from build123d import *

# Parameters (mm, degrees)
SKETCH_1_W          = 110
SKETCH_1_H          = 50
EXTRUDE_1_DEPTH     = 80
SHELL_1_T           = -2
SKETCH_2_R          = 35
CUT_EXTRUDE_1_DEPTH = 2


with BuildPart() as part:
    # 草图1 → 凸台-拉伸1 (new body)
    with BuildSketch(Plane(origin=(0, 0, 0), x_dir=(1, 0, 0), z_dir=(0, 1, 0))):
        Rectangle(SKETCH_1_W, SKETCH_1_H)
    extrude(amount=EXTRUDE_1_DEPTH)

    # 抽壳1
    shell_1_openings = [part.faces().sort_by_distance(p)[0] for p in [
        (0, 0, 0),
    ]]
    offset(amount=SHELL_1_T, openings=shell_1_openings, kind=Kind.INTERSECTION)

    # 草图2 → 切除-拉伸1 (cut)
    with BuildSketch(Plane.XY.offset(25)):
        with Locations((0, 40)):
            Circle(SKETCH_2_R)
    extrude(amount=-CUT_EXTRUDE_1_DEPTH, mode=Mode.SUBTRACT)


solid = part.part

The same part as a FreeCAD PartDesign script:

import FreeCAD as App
import Part
import Sketcher
from FreeCAD import Vector


def faces_at(feature, points):
    """Names of the faces that lie closest to the given points."""
    faces = feature.Shape.Faces
    near = lambda p: min(range(len(faces)), key=lambda i: faces[i].distToShape(Part.Vertex(*p))[0])
    return sorted({f"Face{near(p) + 1}" for p in points})


def add_polygon(sketch, points):
    """Adds a closed chain of lines whose ends are joined by coincident constraints."""
    first, n = sketch.GeometryCount, len(points)
    for a, b in zip(points, points[1:] + points[:1]):
        sketch.addGeometry(Part.LineSegment(App.Vector(*a, 0), App.Vector(*b, 0)), False)
    for i in range(n):
        sketch.addConstraint(Sketcher.Constraint("Coincident", first + i, 2, first + (i + 1) % n, 1))

doc = App.newDocument("Part")
params = doc.addObject("Spreadsheet::Sheet", "Params")
for row, (alias, value) in enumerate([
    ("sketch1_width", "110 mm"),
    ("sketch1_height", "50 mm"),
    ("pad1_length", "80 mm"),
    ("thickness_wall", "2 mm"),
    ("sketch2_diameter", "70 mm"),
    ("pocket1_length", "2 mm"),
], start=1):
    params.set(f"A{row}", alias)
    params.set(f"B{row}", "=" + value)
    params.setAlias(f"B{row}", alias)

body = doc.addObject("PartDesign::Body", "Body")

sketch1 = body.newObject("Sketcher::SketchObject", "Sketch")
sketch1.AttachmentSupport = (doc.getObject("XZ_Plane"), [""])
sketch1.MapMode = "FlatFace"
add_polygon(sketch1, [(-55, -25), (-55, 25), (55, 25), (55, -25)])
sketch1.addConstraint([
    Sketcher.Constraint("Vertical", 0),
    Sketcher.Constraint("Horizontal", 1),
    Sketcher.Constraint("Vertical", 2),
    Sketcher.Constraint("Horizontal", 3),
    Sketcher.Constraint("Symmetric", 0, 2, 2, 2, -1, 1),
    Sketcher.Constraint("DistanceX", 1, 1, 1, 2, 110.0),
    Sketcher.Constraint("DistanceY", 0, 1, 0, 2, 50.0),
])
sketch1.setExpression("Constraints[9]", "Params.sketch1_width")
sketch1.setExpression("Constraints[10]", "Params.sketch1_height")
pad1 = body.newObject("PartDesign::Pad", "Pad")
pad1.Profile = sketch1
pad1.setExpression("Length", "Params.pad1_length")
pad1.Reversed = True
doc.recompute()

thickness = body.newObject("PartDesign::Thickness", "Thickness")
thickness.Base = (pad1, faces_at(pad1, [(0, 0, 0)]))
thickness.setExpression("Value", "Params.thickness_wall")
thickness.Reversed = True
thickness.Join = "Intersection"

sketch2 = body.newObject("Sketcher::SketchObject", "Sketch001")
sketch2.AttachmentSupport = (doc.getObject("XY_Plane"), [""])
sketch2.MapMode = "FlatFace"
sketch2.AttachmentOffset = App.Placement(Vector(0, 0, 25), App.Rotation())
sketch2.addGeometry(Part.Circle(Vector(0, 40, 0), Vector(0, 0, 1), 35), False)
sketch2.addConstraint([
    Sketcher.Constraint("PointOnObject", 0, 3, -2),
    Sketcher.Constraint("Diameter", 0, 70.0),
    Sketcher.Constraint("DistanceY", -1, 1, 0, 3, 40.0),
])
sketch2.setExpression("Constraints[1]", "Params.sketch2_diameter")
pocket1 = body.newObject("PartDesign::Pocket", "Pocket")
pocket1.Profile = sketch2
pocket1.setExpression("Length", "Params.pocket1_length")

doc.recompute()
